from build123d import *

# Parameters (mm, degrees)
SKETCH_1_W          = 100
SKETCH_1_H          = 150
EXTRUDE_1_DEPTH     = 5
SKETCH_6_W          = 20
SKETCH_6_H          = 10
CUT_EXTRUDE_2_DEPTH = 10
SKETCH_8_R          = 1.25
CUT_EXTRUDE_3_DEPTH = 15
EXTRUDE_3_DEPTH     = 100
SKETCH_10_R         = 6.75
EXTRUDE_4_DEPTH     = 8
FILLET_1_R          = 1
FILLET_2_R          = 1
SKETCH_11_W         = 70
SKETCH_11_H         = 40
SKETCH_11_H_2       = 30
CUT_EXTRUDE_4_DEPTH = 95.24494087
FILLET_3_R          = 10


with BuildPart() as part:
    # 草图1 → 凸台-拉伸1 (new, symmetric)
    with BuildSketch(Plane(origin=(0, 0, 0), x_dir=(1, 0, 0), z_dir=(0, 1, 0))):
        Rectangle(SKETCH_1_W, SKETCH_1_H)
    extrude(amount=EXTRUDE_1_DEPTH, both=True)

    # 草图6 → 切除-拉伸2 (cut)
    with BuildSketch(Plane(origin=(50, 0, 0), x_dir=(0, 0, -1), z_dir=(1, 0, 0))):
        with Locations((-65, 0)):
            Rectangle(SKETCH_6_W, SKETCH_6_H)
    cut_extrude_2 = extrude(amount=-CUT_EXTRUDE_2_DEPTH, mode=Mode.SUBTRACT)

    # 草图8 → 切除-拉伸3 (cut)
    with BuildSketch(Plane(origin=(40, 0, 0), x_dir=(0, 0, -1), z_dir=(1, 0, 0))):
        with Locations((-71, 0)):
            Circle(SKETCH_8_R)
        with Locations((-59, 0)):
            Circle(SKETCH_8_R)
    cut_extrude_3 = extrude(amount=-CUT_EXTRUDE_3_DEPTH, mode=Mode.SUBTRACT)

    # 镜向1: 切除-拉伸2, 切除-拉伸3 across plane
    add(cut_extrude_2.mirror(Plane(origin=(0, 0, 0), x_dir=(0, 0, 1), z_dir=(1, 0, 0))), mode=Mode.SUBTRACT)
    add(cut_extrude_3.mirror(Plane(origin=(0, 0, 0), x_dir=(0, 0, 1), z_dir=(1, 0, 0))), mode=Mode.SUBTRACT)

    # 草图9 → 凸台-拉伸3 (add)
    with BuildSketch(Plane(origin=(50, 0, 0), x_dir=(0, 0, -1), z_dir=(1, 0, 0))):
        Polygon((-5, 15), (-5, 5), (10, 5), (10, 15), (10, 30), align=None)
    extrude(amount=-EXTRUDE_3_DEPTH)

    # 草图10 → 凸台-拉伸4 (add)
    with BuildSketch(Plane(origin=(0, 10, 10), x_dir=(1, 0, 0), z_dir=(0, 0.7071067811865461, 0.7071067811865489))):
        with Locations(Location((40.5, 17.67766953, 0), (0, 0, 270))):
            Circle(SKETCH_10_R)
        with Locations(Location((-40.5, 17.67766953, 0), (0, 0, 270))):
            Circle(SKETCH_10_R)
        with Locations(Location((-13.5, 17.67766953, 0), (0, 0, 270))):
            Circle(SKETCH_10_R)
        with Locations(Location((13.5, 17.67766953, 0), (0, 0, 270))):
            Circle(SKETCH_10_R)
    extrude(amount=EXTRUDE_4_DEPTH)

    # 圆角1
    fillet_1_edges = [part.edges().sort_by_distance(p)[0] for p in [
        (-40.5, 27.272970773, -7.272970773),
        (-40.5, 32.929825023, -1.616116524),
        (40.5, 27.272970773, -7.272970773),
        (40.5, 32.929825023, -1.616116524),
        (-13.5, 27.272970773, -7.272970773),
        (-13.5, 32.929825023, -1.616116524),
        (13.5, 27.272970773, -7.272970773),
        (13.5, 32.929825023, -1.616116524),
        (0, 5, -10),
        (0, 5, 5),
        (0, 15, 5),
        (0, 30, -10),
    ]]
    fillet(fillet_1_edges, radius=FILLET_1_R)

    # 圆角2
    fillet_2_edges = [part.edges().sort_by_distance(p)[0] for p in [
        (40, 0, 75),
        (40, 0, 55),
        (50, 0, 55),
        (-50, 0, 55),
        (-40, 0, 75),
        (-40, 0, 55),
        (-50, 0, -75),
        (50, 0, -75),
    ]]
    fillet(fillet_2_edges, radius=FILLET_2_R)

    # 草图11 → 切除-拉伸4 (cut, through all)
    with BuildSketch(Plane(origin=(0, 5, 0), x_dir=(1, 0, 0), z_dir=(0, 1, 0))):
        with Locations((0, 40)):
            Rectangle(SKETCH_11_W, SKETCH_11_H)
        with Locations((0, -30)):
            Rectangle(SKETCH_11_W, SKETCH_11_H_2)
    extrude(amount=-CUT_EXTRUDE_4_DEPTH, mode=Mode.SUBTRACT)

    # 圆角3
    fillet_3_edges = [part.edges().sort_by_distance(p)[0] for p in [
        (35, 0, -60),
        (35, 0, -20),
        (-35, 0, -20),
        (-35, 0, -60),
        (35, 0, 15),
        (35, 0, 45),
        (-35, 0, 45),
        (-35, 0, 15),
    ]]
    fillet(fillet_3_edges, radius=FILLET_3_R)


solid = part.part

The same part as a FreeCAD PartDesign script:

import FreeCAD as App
import Part
import Sketcher

V = App.Vector


def edges_at(feature, points):
    """Names of the edges that pass closest to the given points."""
    edges = feature.Shape.Edges
    near = lambda p: min(range(len(edges)), key=lambda i: edges[i].distToShape(Part.Vertex(*p))[0])
    return sorted({f"Edge{near(p) + 1}" for p in points})


def add_polygon(sketch, points):
    """Adds a closed chain of lines whose ends are joined by coincident constraints."""
    first, n = sketch.GeometryCount, len(points)
    for a, b in zip(points, points[1:] + points[:1]):
        sketch.addGeometry(Part.LineSegment(App.Vector(*a, 0), App.Vector(*b, 0)), False)
    for i in range(n):
        sketch.addConstraint(Sketcher.Constraint("Coincident", first + i, 2, first + (i + 1) % n, 1))

doc = App.newDocument("Part")
body = doc.addObject("PartDesign::Body", "Body")

sketch1 = body.newObject("Sketcher::SketchObject", "Sketch")
sketch1.AttachmentSupport = (doc.getObject("XZ_Plane"), [""])
sketch1.MapMode = "FlatFace"
add_polygon(sketch1, [(-50, -75), (-50, 75), (50, 75), (50, -75)])
sketch1.addConstraint(Sketcher.Constraint("Vertical", 0))
sketch1.addConstraint(Sketcher.Constraint("Horizontal", 1))
sketch1.addConstraint(Sketcher.Constraint("Vertical", 2))
sketch1.addConstraint(Sketcher.Constraint("Horizontal", 3))
sketch1.addConstraint(Sketcher.Constraint("Symmetric", 0, 2, 2, 2, -1, 1))
sketch1.addConstraint(Sketcher.Constraint("DistanceX", 1, 1, 1, 2, 100.0))
sketch1.addConstraint(Sketcher.Constraint("DistanceY", 0, 1, 0, 2, 150.0))
pad1 = body.newObject("PartDesign::Pad", "Pad")
pad1.Profile = sketch1
pad1.Length = 10
pad1.Midplane = True

sketch2 = body.newObject("Sketcher::SketchObject", "Sketch001")
sketch2.AttachmentSupport = (doc.getObject("YZ_Plane"), [""])
sketch2.MapMode = "FlatFace"
sketch2.AttachmentOffset = App.Placement(V(0, 0, 50), App.Rotation())
add_polygon(sketch2, [(5, 75), (-5, 75), (-5, 55), (5, 55)])
sketch2.addConstraint(Sketcher.Constraint("Horizontal", 0))
sketch2.addConstraint(Sketcher.Constraint("Vertical", 1))
sketch2.addConstraint(Sketcher.Constraint("Horizontal", 2))
sketch2.addConstraint(Sketcher.Constraint("Vertical", 3))
sketch2.addConstraint(Sketcher.Constraint("DistanceX", 0, 2, 0, 1, 10.0))
sketch2.addConstraint(Sketcher.Constraint("DistanceY", 1, 2, 1, 1, 20.0))
sketch2.addConstraint(Sketcher.Constraint("DistanceX", 0, 2, -1, 1, 5.0))
sketch2.addConstraint(Sketcher.Constraint("DistanceY", -1, 1, 0, 2, 75.0))
pocket1 = body.newObject("PartDesign::Pocket", "Pocket")
pocket1.Profile = sketch2
pocket1.Length = 10

sketch3 = body.newObject("Sketcher::SketchObject", "Sketch002")
sketch3.AttachmentSupport = (doc.getObject("YZ_Plane"), [""])
sketch3.MapMode = "FlatFace"
sketch3.AttachmentOffset = App.Placement(V(0, 0, 40), App.Rotation())
sketch3.addGeometry(Part.Circle(V(0, 71, 0), V(0, 0, 1), 1.2), False)
sketch3.addGeometry(Part.Circle(V(0, 59, 0), V(0, 0, 1), 1.2), False)
sketch3.addConstraint(Sketcher.Constraint("Equal", 0, 1))
sketch3.addConstraint(Sketcher.Constraint("PointOnObject", 0, 3, -2))
sketch3.addConstraint(Sketcher.Constraint("PointOnObject", 1, 3, -2))
sketch3.addConstraint(Sketcher.Constraint("Diameter", 0, 2.5))
sketch3.addConstraint(Sketcher.Constraint("DistanceY", -1, 1, 0, 3, 71.0))
sketch3.addConstraint(Sketcher.Constraint("DistanceY", -1, 1, 1, 3, 59.0))
pocket2 = body.newObject("PartDesign::Pocket", "Pocket001")
pocket2.Profile = sketch3
pocket2.Length = 15
doc.recompute()

mirrored = body.newObject("PartDesign::Mirrored", "Mirrored")
mirrored.Originals = [pocket1, pocket2]
mirrored.MirrorPlane = (doc.getObject("YZ_Plane"), [""])
body.Tip = mirrored

sketch4 = body.newObject("Sketcher::SketchObject", "Sketch003")
sketch4.AttachmentSupport = (doc.getObject("YZ_Plane"), [""])
sketch4.MapMode = "FlatFace"
sketch4.AttachmentOffset = App.Placement(V(0, 0, 50), App.Rotation())
add_polygon(sketch4, [(15, 5), (5, 5), (5, -10), (30, -10)])
sketch4.addConstraint(Sketcher.Constraint("Horizontal", 0))
sketch4.addConstraint(Sketcher.Constraint("Vertical", 1))
sketch4.addConstraint(Sketcher.Constraint("Horizontal", 2))
sketch4.addConstraint(Sketcher.Constraint("DistanceX", 0, 2, 0, 1, 10.0))
sketch4.addConstraint(Sketcher.Constraint("DistanceX", 2, 1, 2, 2, 25.0))
sketch4.addConstraint(Sketcher.Constraint("DistanceY", 1, 2, 1, 1, 15.0))
sketch4.addConstraint(Sketcher.Constraint("DistanceX", -1, 1, 0, 2, 5.0))
sketch4.addConstraint(Sketcher.Constraint("DistanceY", -1, 1, 0, 2, 5.0))
pad2 = body.newObject("PartDesign::Pad", "Pad001")
pad2.Profile = sketch4
pad2.Length = 100
pad2.Reversed = True

sketch5 = body.newObject("Sketcher::SketchObject", "Sketch004")
sketch5.Placement = App.Placement(V(0, 10, 10), App.Rotation(V(1, 0, 0), V(0, 0.707106781, -0.707106781), V(0, 0.707106781, 0.707106781), "ZXY"))
sketch5.addGeometry(Part.Circle(V(40, 18, 0), V(0, 0, 1), 7), False)
sketch5.addGeometry(Part.Circle(V(-40, 18, 0), V(0, 0, 1), 7), False)
sketch5.addGeometry(Part.Circle(V(-14, 18, 0), V(0, 0, 1), 7), False)
sketch5.addGeometry(Part.Circle(V(14, 18, 0), V(0, 0, 1), 7), False)
sketch5.addConstraint(Sketcher.Constraint("Equal", 0, 1))
sketch5.addConstraint(Sketcher.Constraint("Equal", 1, 2))
sketch5.addConstraint(Sketcher.Constraint("Equal", 2, 3))
sketch5.addConstraint(Sketcher.Constraint("Symmetric", 0, 3, 1, 3, -2))
sketch5.addConstraint(Sketcher.Constraint("Symmetric", 2, 3, 3, 3, -2))
sketch5.addConstraint(Sketcher.Constraint("Horizontal", 1, 3, 2, 3))
sketch5.addConstraint(Sketcher.Constraint("Diameter", 0, 13.5))
sketch5.addConstraint(Sketcher.Constraint("DistanceX", 1, 3, 0, 3, 81.0))
sketch5.addConstraint(Sketcher.Constraint("DistanceX", 1, 3, 2, 3, 27.0))
sketch5.addConstraint(Sketcher.Constraint("DistanceY", -1, 1, 0, 3, 17.67767))
pad3 = body.newObject("PartDesign::Pad", "Pad002")
pad3.Profile = sketch5
pad3.Length = 8
doc.recompute()

fillet = body.newObject("PartDesign::Fillet", "Fillet")
fillet.Base = (pad3, edges_at(pad3, [
    (-40.5, 27.273, -7.273),
    (-40.5, 32.93, -1.616),
    (40.5, 27.273, -7.273),
    (40.5, 32.93, -1.616),
    (-13.5, 27.273, -7.273),
    (-13.5, 32.93, -1.616),
    (13.5, 27.273, -7.273),
    (13.5, 32.93, -1.616),
    (0, 5, -10),
    (0, 5, 5),
    (0, 15, 5),
    (0, 30, -10),
]))
fillet.Radius = 1
doc.recompute()

fillet2 = body.newObject("PartDesign::Fillet", "Fillet001")
fillet2.Base = (fillet, edges_at(fillet, [
    (40, 0, 75),
    (40, 0, 55),
    (50, 0, 55),
    (-50, 0, 55),
    (-40, 0, 75),
    (-40, 0, 55),
    (-50, 0, -75),
    (50, 0, -75),
]))
fillet2.Radius = 1

sketch6 = body.newObject("Sketcher::SketchObject", "Sketch005")
sketch6.AttachmentSupport = (doc.getObject("XZ_Plane"), [""])
sketch6.MapMode = "FlatFace"
sketch6.AttachmentOffset = App.Placement(V(0, 0, -5), App.Rotation())
add_polygon(sketch6, [(-35, -60), (-35, -20), (35, -20), (35, -60)])
add_polygon(sketch6, [(-35, 15), (-35, 45), (35, 45), (35, 15)])
sketch6.addConstraint(Sketcher.Constraint("Vertical", 0))
sketch6.addConstraint(Sketcher.Constraint("Horizontal", 1))
sketch6.addConstraint(Sketcher.Constraint("Vertical", 2))
sketch6.addConstraint(Sketcher.Constraint("Horizontal", 3))
sketch6.addConstraint(Sketcher.Constraint("Vertical", 4))
sketch6.addConstraint(Sketcher.Constraint("Horizontal", 5))
sketch6.addConstraint(Sketcher.Constraint("Vertical", 6))
sketch6.addConstraint(Sketcher.Constraint("Horizontal", 7))
sketch6.addConstraint(Sketcher.Constraint("Vertical", 3, 2, 4, 2))
sketch6.addConstraint(Sketcher.Constraint("Vertical", 2, 2, 5, 2))
sketch6.addConstraint(Sketcher.Constraint("DistanceX", 1, 1, 1, 2, 70.0))
sketch6.addConstraint(Sketcher.Constraint("DistanceY", 0, 1, 0, 2, 40.0))
sketch6.addConstraint(Sketcher.Constraint("DistanceY", 4, 1, 4, 2, 30.0))
sketch6.addConstraint(Sketcher.Constraint("DistanceX", 0, 2, -1, 1, 35.0))
sketch6.addConstraint(Sketcher.Constraint("DistanceY", 0, 2, -1, 1, 20.0))
sketch6.addConstraint(Sketcher.Constraint("DistanceY", -1, 1, 4, 2, 45.0))
pocket3 = body.newObject("PartDesign::Pocket", "Pocket002")
pocket3.Profile = sketch6
pocket3.Type = "ThroughAll"
pocket3.Reversed = True
doc.recompute()

fillet3 = body.newObject("PartDesign::Fillet", "Fillet002")
fillet3.Base = (pocket3, edges_at(pocket3, [
    (35, 0, -60),
    (35, 0, -20),
    (-35, 0, -20),
    (-35, 0, -60),
    (35, 0, 15),
    (35, 0, 45),
    (-35, 0, 45),
    (-35, 0, 15),
]))
fillet3.Radius = 10

doc.recompute()
